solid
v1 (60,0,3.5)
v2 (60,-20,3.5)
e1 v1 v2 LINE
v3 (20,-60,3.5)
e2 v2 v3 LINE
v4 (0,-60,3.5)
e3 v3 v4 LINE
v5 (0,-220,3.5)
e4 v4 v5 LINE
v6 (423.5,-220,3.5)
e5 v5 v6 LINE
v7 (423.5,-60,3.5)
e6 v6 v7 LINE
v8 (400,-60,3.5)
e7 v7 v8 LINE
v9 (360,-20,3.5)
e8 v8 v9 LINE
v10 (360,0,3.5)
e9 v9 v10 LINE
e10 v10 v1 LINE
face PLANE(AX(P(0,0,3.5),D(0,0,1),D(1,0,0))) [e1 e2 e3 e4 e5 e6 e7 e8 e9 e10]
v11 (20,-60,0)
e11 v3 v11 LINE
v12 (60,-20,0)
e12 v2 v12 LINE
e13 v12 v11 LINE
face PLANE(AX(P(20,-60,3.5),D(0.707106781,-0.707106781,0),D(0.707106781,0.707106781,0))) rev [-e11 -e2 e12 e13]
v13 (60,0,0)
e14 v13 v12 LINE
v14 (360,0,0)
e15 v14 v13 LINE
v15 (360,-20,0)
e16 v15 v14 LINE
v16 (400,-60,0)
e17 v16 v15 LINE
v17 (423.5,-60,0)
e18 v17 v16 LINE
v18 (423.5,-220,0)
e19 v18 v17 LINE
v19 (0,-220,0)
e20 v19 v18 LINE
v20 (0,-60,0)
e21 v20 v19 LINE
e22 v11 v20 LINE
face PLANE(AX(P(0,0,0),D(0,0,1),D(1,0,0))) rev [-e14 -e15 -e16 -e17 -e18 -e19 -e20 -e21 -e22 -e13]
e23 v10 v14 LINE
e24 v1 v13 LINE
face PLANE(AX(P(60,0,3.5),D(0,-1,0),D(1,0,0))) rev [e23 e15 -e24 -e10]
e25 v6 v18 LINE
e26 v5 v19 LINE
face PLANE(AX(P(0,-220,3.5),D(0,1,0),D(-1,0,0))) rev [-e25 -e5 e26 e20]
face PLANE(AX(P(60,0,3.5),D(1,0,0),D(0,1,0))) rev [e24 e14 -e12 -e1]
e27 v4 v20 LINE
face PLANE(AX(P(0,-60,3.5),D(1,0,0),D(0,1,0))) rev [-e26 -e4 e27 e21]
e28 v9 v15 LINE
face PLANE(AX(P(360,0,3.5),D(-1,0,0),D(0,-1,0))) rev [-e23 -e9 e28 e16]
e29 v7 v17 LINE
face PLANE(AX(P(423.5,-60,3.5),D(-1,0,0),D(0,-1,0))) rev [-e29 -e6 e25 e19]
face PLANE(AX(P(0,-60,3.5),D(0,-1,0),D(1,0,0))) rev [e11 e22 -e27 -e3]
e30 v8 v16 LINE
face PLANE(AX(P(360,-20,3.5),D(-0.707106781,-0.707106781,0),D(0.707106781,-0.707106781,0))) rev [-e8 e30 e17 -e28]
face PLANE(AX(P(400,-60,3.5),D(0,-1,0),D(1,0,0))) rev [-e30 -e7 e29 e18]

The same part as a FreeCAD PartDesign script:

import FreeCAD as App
import Part
import Sketcher

V = App.Vector
Q = App.Units.Quantity


def add_polygon(sketch, points):
    """Adds a closed chain of lines whose ends are joined by coincident constraints."""
    first, n = sketch.GeometryCount, len(points)
    for a, b in zip(points, points[1:] + points[:1]):
        sketch.addGeometry(Part.LineSegment(App.Vector(*a, 0), App.Vector(*b, 0)), False)
    for i in range(n):
        sketch.addConstraint(Sketcher.Constraint("Coincident", first + i, 2, first + (i + 1) % n, 1))

doc = App.newDocument("Part")
body = doc.addObject("PartDesign::Body", "Body")

# Sketch on XY plane
sketch1 = body.newObject("Sketcher::SketchObject", "Sketch")
sketch1.AttachmentSupport = (doc.getObject("XY_Plane"), [""])
sketch1.MapMode = "FlatFace"
add_polygon(sketch1, [(60, 0), (60, -20), (20, -60), (0, -60), (0, -220), (424, -220), (424, -60), (400, -60), (360, -20), (360, 0)])  # lines 0-9
sketch1.addConstraint(Sketcher.Constraint("Vertical", 0))
sketch1.addConstraint(Sketcher.Constraint("Horizontal", 2))
sketch1.addConstraint(Sketcher.Constraint("Vertical", 3))
sketch1.addConstraint(Sketcher.Constraint("Horizontal", 4))
sketch1.addConstraint(Sketcher.Constraint("Vertical", 5))
sketch1.addConstraint(Sketcher.Constraint("Horizontal", 6))
sketch1.addConstraint(Sketcher.Constraint("Vertical", 8))
sketch1.addConstraint(Sketcher.Constraint("Horizontal", 9))
sketch1.addConstraint(Sketcher.Constraint("PointOnObject", 2, 2, -2))
sketch1.addConstraint(Sketcher.Constraint("PointOnObject", 8, 2, -1))
sketch1.addConstraint(Sketcher.Constraint("Perpendicular", 1, 7))
sketch1.addConstraint(Sketcher.Constraint("Horizontal", 2, 2, 5, 2))
sketch1.addConstraint(Sketcher.Constraint("Horizontal", 0, 2, 7, 2))
sketch1.addConstraint(Sketcher.Constraint("Equal", 2, 0))
sketch1.addConstraint(Sketcher.Constraint("Equal", 1, 7))
sketch1.addConstraint(Sketcher.Constraint("DistanceX", 2, 2, 2, 1, Q("20 mm")))
sketch1.addConstraint(Sketcher.Constraint("DistanceX", 9, 2, 9, 1, Q("300 mm")))
sketch1.addConstraint(Sketcher.Constraint("DistanceY", 3, 2, 3, 1, Q("160 mm")))
sketch1.addConstraint(Sketcher.Constraint("DistanceX", 4, 1, 4, 2, Q("423.5 mm")))
sketch1.addConstraint(Sketcher.Constraint("DistanceX", 6, 2, 6, 1, Q("23.5 mm")))
pad1 = body.newObject("PartDesign::Pad", "Pad")
pad1.Profile = sketch1
pad1.Length = 3.5

doc.recompute()
